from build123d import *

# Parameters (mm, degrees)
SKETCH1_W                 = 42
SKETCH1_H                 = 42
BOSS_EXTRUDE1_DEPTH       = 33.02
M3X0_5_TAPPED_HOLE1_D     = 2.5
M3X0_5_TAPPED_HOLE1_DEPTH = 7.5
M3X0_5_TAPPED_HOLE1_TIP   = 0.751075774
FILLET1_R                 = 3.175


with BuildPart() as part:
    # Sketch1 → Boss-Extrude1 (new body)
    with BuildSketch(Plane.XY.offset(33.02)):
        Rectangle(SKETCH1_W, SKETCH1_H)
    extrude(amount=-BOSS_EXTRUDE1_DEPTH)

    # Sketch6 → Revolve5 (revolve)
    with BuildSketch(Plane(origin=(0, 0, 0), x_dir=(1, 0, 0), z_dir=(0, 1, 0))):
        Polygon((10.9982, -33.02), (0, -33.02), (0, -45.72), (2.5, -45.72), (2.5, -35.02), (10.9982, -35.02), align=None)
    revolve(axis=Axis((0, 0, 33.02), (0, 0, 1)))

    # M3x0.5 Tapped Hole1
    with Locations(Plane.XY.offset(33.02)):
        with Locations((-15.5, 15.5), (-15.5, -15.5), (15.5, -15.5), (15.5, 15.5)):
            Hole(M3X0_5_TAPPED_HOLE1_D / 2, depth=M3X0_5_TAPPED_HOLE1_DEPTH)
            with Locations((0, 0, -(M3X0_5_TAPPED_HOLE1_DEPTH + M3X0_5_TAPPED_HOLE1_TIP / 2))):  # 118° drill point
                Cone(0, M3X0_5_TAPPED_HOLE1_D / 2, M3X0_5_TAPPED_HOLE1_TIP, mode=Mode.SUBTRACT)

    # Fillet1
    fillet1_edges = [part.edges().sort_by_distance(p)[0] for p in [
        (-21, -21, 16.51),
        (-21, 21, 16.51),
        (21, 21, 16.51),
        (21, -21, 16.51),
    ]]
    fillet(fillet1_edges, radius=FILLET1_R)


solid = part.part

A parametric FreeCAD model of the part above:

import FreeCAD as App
import Part
import Sketcher
Q = App.Units.Quantity


def edges_at(feature, points):
    """Names of the edges that pass closest to the given points."""
    edges = feature.Shape.Edges
    near = lambda p: min(range(len(edges)), key=lambda i: edges[i].distToShape(Part.Vertex(*p))[0])
    return sorted({f"Edge{near(p) + 1}" for p in points})

doc = App.newDocument("Part")
body = doc.addObject("PartDesign::Body", "Body")

sketch1 = body.newObject("Sketcher::SketchObject", "Sketch")
sketch1.AttachmentSupport = (doc.getObject("XY_Plane"), [""])
sketch1.MapMode = "FlatFace"
sketch1.AttachmentOffset = App.Placement(App.Vector(0, 0, 33.02), App.Rotation())
sketch1.addGeometry([
    Part.LineSegment(App.Vector(-21, 21, 0), App.Vector(-21, -21, 0)),
    Part.LineSegment(App.Vector(-21, -21, 0), App.Vector(21, -21, 0)),
    Part.LineSegment(App.Vector(21, -21, 0), App.Vector(21, 21, 0)),
    Part.LineSegment(App.Vector(21, 21, 0), App.Vector(-21, 21, 0)),
], False)
sketch1.addConstraint([
    Sketcher.Constraint("Coincident", 0, 2, 1, 1),
    Sketcher.Constraint("Coincident", 1, 2, 2, 1),
    Sketcher.Constraint("Coincident", 2, 2, 3, 1),
    Sketcher.Constraint("Coincident", 3, 2, 0, 1),
    Sketcher.Constraint("Vertical", 0),
    Sketcher.Constraint("Horizontal", 1),
    Sketcher.Constraint("Vertical", 2),
    Sketcher.Constraint("Horizontal", 3),
    Sketcher.Constraint("Symmetric", 0, 2, 2, 2, -1, 1),
    Sketcher.Constraint("Equal", 3, 0),
    Sketcher.Constraint("DistanceX", 1, 1, 1, 2, Q("42 mm")),
])
pad1 = body.newObject("PartDesign::Pad", "Pad")
pad1.Profile = sketch1
pad1.Length = 33.02
pad1.Reversed = True

sketch2 = body.newObject("Sketcher::SketchObject", "Sketch001")
sketch2.AttachmentSupport = (doc.getObject("XZ_Plane"), [""])
sketch2.MapMode = "FlatFace"
sketch2.addGeometry([
    Part.LineSegment(App.Vector(10.9982, 33.02, 0), App.Vector(0, 33.02, 0)),
    Part.LineSegment(App.Vector(0, 33.02, 0), App.Vector(0, 45.72, 0)),
    Part.LineSegment(App.Vector(0, 45.72, 0), App.Vector(2.5, 45.72, 0)),
    Part.LineSegment(App.Vector(2.5, 45.72, 0), App.Vector(2.5, 35.02, 0)),
    Part.LineSegment(App.Vector(2.5, 35.02, 0), App.Vector(10.9982, 35.02, 0)),
    Part.LineSegment(App.Vector(10.9982, 35.02, 0), App.Vector(10.9982, 33.02, 0)),
], False)
sketch2.addConstraint([
    Sketcher.Constraint("Coincident", 0, 2, 1, 1),
    Sketcher.Constraint("Coincident", 1, 2, 2, 1),
    Sketcher.Constraint("Coincident", 2, 2, 3, 1),
    Sketcher.Constraint("Coincident", 3, 2, 4, 1),
    Sketcher.Constraint("Coincident", 4, 2, 5, 1),
    Sketcher.Constraint("Coincident", 5, 2, 0, 1),
    Sketcher.Constraint("Horizontal", 0),
    Sketcher.Constraint("Vertical", 1),
    Sketcher.Constraint("Horizontal", 2),
    Sketcher.Constraint("Vertical", 3),
    Sketcher.Constraint("Horizontal", 4),
    Sketcher.Constraint("Vertical", 5),
    Sketcher.Constraint("PointOnObject", 0, 2, -2),
    Sketcher.Constraint("DistanceY", 5, 2, 5, 1, Q("2 mm")),
    Sketcher.Constraint("DistanceX", 2, 1, 2, 2, Q("2.5 mm")),
    Sketcher.Constraint("DistanceY", 1, 1, 1, 2, Q("12.7 mm")),
    Sketcher.Constraint("DistanceY", -1, 1, 0, 2, Q("33.02 mm")),
    Sketcher.Constraint("DistanceX", 0, 2, 0, 1, Q("10.9982 mm")),
])
revolution = body.newObject("PartDesign::Revolution", "Revolution")
revolution.Profile = sketch2
revolution.ReferenceAxis = (sketch2, ["V_Axis"])
revolution.Angle = 360

sketch3 = body.newObject("Sketcher::SketchObject", "Sketch002")
sketch3.AttachmentSupport = (doc.getObject("XY_Plane"), [""])
sketch3.MapMode = "FlatFace"
sketch3.AttachmentOffset = App.Placement(App.Vector(0, 0, 33.02), App.Rotation())
sketch3.addGeometry([
    Part.Circle(App.Vector(-15.5, 15.5, 0), App.Vector(0, 0, 1), 1.25),
    Part.Circle(App.Vector(-15.5, -15.5, 0), App.Vector(0, 0, 1), 1.25),
    Part.Circle(App.Vector(15.5, -15.5, 0), App.Vector(0, 0, 1), 1.25),
    Part.Circle(App.Vector(15.5, 15.5, 0), App.Vector(0, 0, 1), 1.25),
], False)
sketch3.addConstraint([
    Sketcher.Constraint("Equal", 0, 1),
    Sketcher.Constraint("Equal", 1, 2),
    Sketcher.Constraint("Equal", 2, 3),
    Sketcher.Constraint("Symmetric", 0, 3, 2, 3, -1, 1),
    Sketcher.Constraint("Symmetric", 1, 3, 3, 3, -1, 1),
    Sketcher.Constraint("Symmetric", 1, 3, 2, 3, -2),
    Sketcher.Constraint("Diameter", 0, Q("2.5 mm")),
    Sketcher.Constraint("DistanceY", 1, 3, 0, 3, Q("31 mm")),
    Sketcher.Constraint("DistanceX", 1, 3, 2, 3, Q("31 mm")),
])
doc.recompute()
hole = body.newObject("PartDesign::Hole", "Hole")
hole.Profile = sketch3
hole.ThreadType = "None"
hole.Diameter = 2.5
hole.DepthType = "Dimension"
hole.Depth = 7.5
hole.DrillPoint = "Angled"
hole.DrillPointAngle = 118
doc.recompute()

fillet = body.newObject("PartDesign::Fillet", "Fillet")
fillet.Base = (hole, edges_at(hole, [
    (-21, -21, 16.51),
    (-21, 21, 16.51),
    (21, 21, 16.51),
    (21, -21, 16.51),
]))
fillet.Radius = 3.175

doc.recompute()
